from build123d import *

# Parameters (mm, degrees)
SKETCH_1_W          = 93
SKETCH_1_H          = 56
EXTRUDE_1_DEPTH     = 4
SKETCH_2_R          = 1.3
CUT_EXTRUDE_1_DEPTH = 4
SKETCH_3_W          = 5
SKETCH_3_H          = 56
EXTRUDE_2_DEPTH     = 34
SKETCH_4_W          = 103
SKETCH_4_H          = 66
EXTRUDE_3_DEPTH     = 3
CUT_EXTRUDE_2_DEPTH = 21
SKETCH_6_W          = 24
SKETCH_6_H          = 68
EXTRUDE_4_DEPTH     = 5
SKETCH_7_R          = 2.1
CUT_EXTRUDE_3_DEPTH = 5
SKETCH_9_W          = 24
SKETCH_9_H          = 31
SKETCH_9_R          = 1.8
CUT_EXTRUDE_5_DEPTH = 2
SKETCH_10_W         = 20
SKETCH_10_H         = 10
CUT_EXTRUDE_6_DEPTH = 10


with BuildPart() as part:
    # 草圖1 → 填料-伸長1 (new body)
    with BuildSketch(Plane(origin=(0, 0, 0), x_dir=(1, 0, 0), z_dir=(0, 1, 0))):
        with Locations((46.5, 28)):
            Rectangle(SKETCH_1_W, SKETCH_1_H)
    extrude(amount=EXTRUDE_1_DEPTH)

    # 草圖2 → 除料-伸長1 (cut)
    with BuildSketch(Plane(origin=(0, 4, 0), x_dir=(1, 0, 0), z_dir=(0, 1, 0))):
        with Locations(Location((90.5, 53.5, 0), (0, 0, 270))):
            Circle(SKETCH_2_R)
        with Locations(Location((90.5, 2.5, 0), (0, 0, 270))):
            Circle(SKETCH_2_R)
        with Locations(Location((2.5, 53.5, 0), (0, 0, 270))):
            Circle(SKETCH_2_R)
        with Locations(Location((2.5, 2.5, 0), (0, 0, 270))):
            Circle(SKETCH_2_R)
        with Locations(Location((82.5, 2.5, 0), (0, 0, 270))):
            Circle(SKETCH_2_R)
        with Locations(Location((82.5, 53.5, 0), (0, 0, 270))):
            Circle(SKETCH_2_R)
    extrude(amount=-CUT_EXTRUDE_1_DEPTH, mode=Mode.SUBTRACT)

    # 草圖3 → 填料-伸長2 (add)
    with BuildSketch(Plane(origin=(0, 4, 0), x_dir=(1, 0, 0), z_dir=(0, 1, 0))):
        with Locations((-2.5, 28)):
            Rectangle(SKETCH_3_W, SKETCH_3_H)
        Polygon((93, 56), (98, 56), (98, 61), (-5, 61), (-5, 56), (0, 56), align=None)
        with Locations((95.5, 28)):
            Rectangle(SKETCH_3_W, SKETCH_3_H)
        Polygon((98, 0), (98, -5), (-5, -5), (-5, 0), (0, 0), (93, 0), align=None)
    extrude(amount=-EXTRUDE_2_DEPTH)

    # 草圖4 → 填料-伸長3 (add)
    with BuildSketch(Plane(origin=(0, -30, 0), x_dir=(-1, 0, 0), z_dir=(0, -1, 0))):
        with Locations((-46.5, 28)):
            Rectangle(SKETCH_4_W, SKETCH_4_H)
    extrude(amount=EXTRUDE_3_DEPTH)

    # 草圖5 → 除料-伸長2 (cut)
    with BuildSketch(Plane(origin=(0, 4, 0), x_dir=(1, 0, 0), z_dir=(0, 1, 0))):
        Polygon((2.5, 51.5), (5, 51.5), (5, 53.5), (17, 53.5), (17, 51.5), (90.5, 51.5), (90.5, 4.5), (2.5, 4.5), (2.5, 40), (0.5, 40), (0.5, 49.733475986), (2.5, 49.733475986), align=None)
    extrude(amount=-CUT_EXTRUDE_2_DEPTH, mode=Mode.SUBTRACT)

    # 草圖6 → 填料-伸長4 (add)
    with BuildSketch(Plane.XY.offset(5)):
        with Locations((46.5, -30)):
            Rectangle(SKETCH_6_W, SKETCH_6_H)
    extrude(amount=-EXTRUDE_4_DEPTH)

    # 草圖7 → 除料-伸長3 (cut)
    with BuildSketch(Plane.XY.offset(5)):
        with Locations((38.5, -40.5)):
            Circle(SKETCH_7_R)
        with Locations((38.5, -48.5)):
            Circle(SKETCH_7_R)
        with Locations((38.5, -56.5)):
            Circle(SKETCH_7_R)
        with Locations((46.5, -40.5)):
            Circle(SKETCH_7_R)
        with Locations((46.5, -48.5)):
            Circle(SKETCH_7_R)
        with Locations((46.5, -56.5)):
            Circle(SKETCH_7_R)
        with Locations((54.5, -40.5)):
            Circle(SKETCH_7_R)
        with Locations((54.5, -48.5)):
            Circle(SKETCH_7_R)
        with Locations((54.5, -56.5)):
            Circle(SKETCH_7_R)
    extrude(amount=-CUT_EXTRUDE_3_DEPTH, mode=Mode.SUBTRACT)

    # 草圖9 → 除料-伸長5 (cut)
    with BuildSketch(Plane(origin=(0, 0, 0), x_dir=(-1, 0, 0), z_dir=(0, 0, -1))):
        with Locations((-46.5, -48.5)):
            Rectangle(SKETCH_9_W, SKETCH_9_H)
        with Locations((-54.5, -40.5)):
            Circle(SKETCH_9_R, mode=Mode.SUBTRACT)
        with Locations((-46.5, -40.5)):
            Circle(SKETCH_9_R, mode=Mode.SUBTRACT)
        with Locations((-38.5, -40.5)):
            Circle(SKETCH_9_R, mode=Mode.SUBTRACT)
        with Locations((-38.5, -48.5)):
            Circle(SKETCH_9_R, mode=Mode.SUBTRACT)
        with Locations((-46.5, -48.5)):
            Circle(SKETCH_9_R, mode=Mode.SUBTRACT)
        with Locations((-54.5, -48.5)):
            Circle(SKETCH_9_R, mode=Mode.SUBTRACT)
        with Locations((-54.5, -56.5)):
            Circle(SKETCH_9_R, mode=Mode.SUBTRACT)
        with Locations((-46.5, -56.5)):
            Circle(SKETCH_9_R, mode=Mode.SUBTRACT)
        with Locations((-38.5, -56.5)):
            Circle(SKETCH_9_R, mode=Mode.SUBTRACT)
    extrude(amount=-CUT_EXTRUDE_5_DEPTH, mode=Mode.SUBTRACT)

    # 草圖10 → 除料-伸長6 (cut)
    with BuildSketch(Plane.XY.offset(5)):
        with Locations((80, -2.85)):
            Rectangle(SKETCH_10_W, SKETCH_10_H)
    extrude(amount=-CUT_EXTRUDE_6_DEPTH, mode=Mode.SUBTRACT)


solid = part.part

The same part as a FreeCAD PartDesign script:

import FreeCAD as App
import Part
import Sketcher
from FreeCAD import Vector


def add_polygon(sketch, points):
    """Adds a closed chain of lines whose ends are joined by coincident constraints."""
    first, n = sketch.GeometryCount, len(points)
    for a, b in zip(points, points[1:] + points[:1]):
        sketch.addGeometry(Part.LineSegment(App.Vector(*a, 0), App.Vector(*b, 0)), False)
    for i in range(n):
        sketch.addConstraint(Sketcher.Constraint("Coincident", first + i, 2, first + (i + 1) % n, 1))

doc = App.newDocument("Part")
body = doc.addObject("PartDesign::Body", "Body")

# Sketch on XZ plane
sketch1 = body.newObject("Sketcher::SketchObject", "Sketch")
sketch1.AttachmentSupport = (doc.getObject("XZ_Plane"), [""])
sketch1.MapMode = "FlatFace"
add_polygon(sketch1, [(0, -56), (0, 0), (93, 0), (93, -56)])  # lines 0-3
sketch1.addConstraint([
    Sketcher.Constraint("Vertical", 0),
    Sketcher.Constraint("Horizontal", 1),
    Sketcher.Constraint("Vertical", 2),
    Sketcher.Constraint("Horizontal", 3),
    Sketcher.Constraint("Coincident", 0, 2, -1, 1),
    Sketcher.Constraint("DistanceX", 1, 1, 1, 2, 93.0),
    Sketcher.Constraint("DistanceY", 0, 1, 0, 2, 56.0),
])
pad1 = body.newObject("PartDesign::Pad", "Pad")
pad1.Profile = sketch1
pad1.Length = 4
pad1.Reversed = True

# Sketch on XZ plane
sketch2 = body.newObject("Sketcher::SketchObject", "Sketch001")
sketch2.AttachmentSupport = (doc.getObject("XZ_Plane"), [""])
sketch2.MapMode = "FlatFace"
sketch2.AttachmentOffset = App.Placement(Vector(0, 0, -4), App.Rotation())
sketch2.addGeometry([
    Part.Circle(Vector(90.5, -53.5, 0), Vector(0, 0, 1), 1.3),  # 0
    Part.Circle(Vector(90.5, -2.5, 0), Vector(0, 0, 1), 1.3),  # 1
    Part.Circle(Vector(2.5, -53.5, 0), Vector(0, 0, 1), 1.3),  # 2
    Part.Circle(Vector(2.5, -2.5, 0), Vector(0, 0, 1), 1.3),  # 3
    Part.Circle(Vector(82.5, -2.5, 0), Vector(0, 0, 1), 1.3),  # 4
    Part.Circle(Vector(82.5, -53.5, 0), Vector(0, 0, 1), 1.3),  # 5
], False)
sketch2.addConstraint([
    Sketcher.Constraint("Equal", 0, 1),
    Sketcher.Constraint("Equal", 1, 2),
    Sketcher.Constraint("Equal", 2, 3),
    Sketcher.Constraint("Equal", 3, 4),
    Sketcher.Constraint("Equal", 4, 5),
    Sketcher.Constraint("Horizontal", 0, 3, 2, 3),
    Sketcher.Constraint("Horizontal", 1, 3, 3, 3),
    Sketcher.Constraint("Horizontal", 3, 3, 4, 3),
    Sketcher.Constraint("Horizontal", 2, 3, 5, 3),
    Sketcher.Constraint("Vertical", 0, 3, 1, 3),
    Sketcher.Constraint("Vertical", 2, 3, 3, 3),
    Sketcher.Constraint("Vertical", 4, 3, 5, 3),
    Sketcher.Constraint("Diameter", 0, 2.6),
    Sketcher.Constraint("DistanceY", 0, 3, 1, 3, 51.0),
    Sketcher.Constraint("DistanceX", 2, 3, 0, 3, 88.0),
    Sketcher.Constraint("DistanceX", 4, 3, 1, 3, 8.0),
    Sketcher.Constraint("DistanceX", -1, 1, 0, 3, 90.5),
    Sketcher.Constraint("DistanceY", 0, 3, -1, 1, 53.5),
])
pocket1 = body.newObject("PartDesign::Pocket", "Pocket")
pocket1.Profile = sketch2
pocket1.Length = 4
pocket1.Reversed = True

# Sketch on XZ plane
sketch3 = body.newObject("Sketcher::SketchObject", "Sketch002")
sketch3.AttachmentSupport = (doc.getObject("XZ_Plane"), [""])
sketch3.MapMode = "FlatFace"
sketch3.AttachmentOffset = App.Placement(Vector(0, 0, -4), App.Rotation())
add_polygon(sketch3, [(98, -61), (-5, -61), (-5, 5), (98, 5)])  # lines 0-3
add_polygon(sketch3, [(0, 0), (0, -56), (93, -56), (93, 0)])  # lines 4-7
sketch3.addConstraint([
    Sketcher.Constraint("Horizontal", 0),
    Sketcher.Constraint("Vertical", 1),
    Sketcher.Constraint("Horizontal", 2),
    Sketcher.Constraint("Vertical", 3),
    Sketcher.Constraint("Vertical", 4),
    Sketcher.Constraint("Horizontal", 5),
    Sketcher.Constraint("Vertical", 6),
    Sketcher.Constraint("Horizontal", 7),
    Sketcher.Constraint("Coincident", 7, 2, -1, 1),
    Sketcher.Constraint("DistanceX", 0, 2, 0, 1, 103.0),
    Sketcher.Constraint("DistanceX", 5, 1, 5, 2, 93.0),
    Sketcher.Constraint("DistanceY", 1, 1, 1, 2, 66.0),
    Sketcher.Constraint("DistanceY", 4, 2, 4, 1, 56.0),
    Sketcher.Constraint("DistanceX", 0, 2, -1, 1, 5.0),
    Sketcher.Constraint("DistanceY", 0, 2, -1, 1, 61.0),
])
pad2 = body.newObject("PartDesign::Pad", "Pad001")
pad2.Profile = sketch3
pad2.Length = 34

# Sketch on XZ plane
sketch4 = body.newObject("Sketcher::SketchObject", "Sketch003")
sketch4.AttachmentSupport = (doc.getObject("XZ_Plane"), [""])
sketch4.MapMode = "FlatFace"
sketch4.AttachmentOffset = App.Placement(Vector(0, 0, 30), App.Rotation())
add_polygon(sketch4, [(98, -61), (98, 5), (-5, 5), (-5, -61)])  # lines 0-3
sketch4.addConstraint([
    Sketcher.Constraint("Vertical", 0),
    Sketcher.Constraint("Horizontal", 1),
    Sketcher.Constraint("Vertical", 2),
    Sketcher.Constraint("Horizontal", 3),
    Sketcher.Constraint("DistanceX", 1, 2, 1, 1, 103.0),
    Sketcher.Constraint("DistanceY", 0, 1, 0, 2, 66.0),
    Sketcher.Constraint("DistanceX", -1, 1, 0, 2, 98.0),
    Sketcher.Constraint("DistanceY", -1, 1, 0, 2, 5.0),
])
pad3 = body.newObject("PartDesign::Pad", "Pad002")
pad3.Profile = sketch4
pad3.Length = 3

# Sketch on XZ plane
sketch5 = body.newObject("Sketcher::SketchObject", "Sketch004")
sketch5.AttachmentSupport = (doc.getObject("XZ_Plane"), [""])
sketch5.MapMode = "FlatFace"
sketch5.AttachmentOffset = App.Placement(Vector(0, 0, -4), App.Rotation())
add_polygon(sketch5, [(5, -51.5), (2.5, -51.5), (2.5, -49.7), (0.5, -49.7), (0.5, -40), (2.5, -40), (2.5, -4.5), (90.5, -4.5), (90.5, -51.5), (17, -51.5), (17, -53.5), (5, -53.5)])  # lines 0-11
sketch5.addConstraint([
    Sketcher.Constraint("Horizontal", 0),
    Sketcher.Constraint("Vertical", 1),
    Sketcher.Constraint("Horizontal", 2),
    Sketcher.Constraint("Vertical", 3),
    Sketcher.Constraint("Horizontal", 4),
    Sketcher.Constraint("Vertical", 5),
    Sketcher.Constraint("Horizontal", 6),
    Sketcher.Constraint("Vertical", 7),
    Sketcher.Constraint("Horizontal", 8),
    Sketcher.Constraint("Vertical", 9),
    Sketcher.Constraint("Horizontal", 10),
    Sketcher.Constraint("Vertical", 11),
    Sketcher.Constraint("Horizontal", 0, 2, 7, 2),
    Sketcher.Constraint("Vertical", 1, 2, 4, 2),
    Sketcher.Constraint("Equal", 4, 9),
    Sketcher.Constraint("DistanceX", 2, 2, 2, 1, 2.0),
    Sketcher.Constraint("DistanceX", 6, 1, 6, 2, 88.0),
    Sketcher.Constraint("DistanceX", 10, 2, 10, 1, 12.0),
    Sketcher.Constraint("DistanceY", 7, 2, 7, 1, 47.0),
    Sketcher.Constraint("DistanceX", 0, 2, 0, 1, 2.5),
    Sketcher.Constraint("DistanceY", 5, 1, 5, 2, 35.5),
    Sketcher.Constraint("DistanceY", 3, 2, -1, 1, 40.0),
    Sketcher.Constraint("DistanceX", -1, 1, 8, 2, 17.0),
    Sketcher.Constraint("DistanceY", 1, 1, 1, 2, 1.766524),
])
pocket2 = body.newObject("PartDesign::Pocket", "Pocket001")
pocket2.Profile = sketch5
pocket2.Length = 21
pocket2.Reversed = True

# Sketch on XY plane
sketch6 = body.newObject("Sketcher::SketchObject", "Sketch005")
sketch6.AttachmentSupport = (doc.getObject("XY_Plane"), [""])
sketch6.MapMode = "FlatFace"
sketch6.AttachmentOffset = App.Placement(Vector(0, 0, 5), App.Rotation())
add_polygon(sketch6, [(34, 4), (34, -64), (58, -64), (58, 4)])  # lines 0-3
sketch6.addConstraint([
    Sketcher.Constraint("Vertical", 0),
    Sketcher.Constraint("Horizontal", 1),
    Sketcher.Constraint("Vertical", 2),
    Sketcher.Constraint("Horizontal", 3),
    Sketcher.Constraint("DistanceX", 1, 1, 1, 2, 24.0),
    Sketcher.Constraint("DistanceY", 0, 2, 0, 1, 68.0),
    Sketcher.Constraint("DistanceY", 0, 2, -1, 1, 64.0),
    Sketcher.Constraint("DistanceX", -1, 1, 0, 2, 34.5),
])
pad4 = body.newObject("PartDesign::Pad", "Pad003")
pad4.Profile = sketch6
pad4.Length = 5
pad4.Reversed = True

# Sketch on XY plane
sketch7 = body.newObject("Sketcher::SketchObject", "Sketch006")
sketch7.AttachmentSupport = (doc.getObject("XY_Plane"), [""])
sketch7.MapMode = "FlatFace"
sketch7.AttachmentOffset = App.Placement(Vector(0, 0, 5), App.Rotation())
sketch7.addGeometry([
    Part.Circle(Vector(38.5, -40.5, 0), Vector(0, 0, 1), 2.1),  # 0
    Part.Circle(Vector(38.5, -48.5, 0), Vector(0, 0, 1), 2.1),  # 1
    Part.Circle(Vector(38.5, -56.5, 0), Vector(0, 0, 1), 2.1),  # 2
    Part.Circle(Vector(46.5, -40.5, 0), Vector(0, 0, 1), 2.1),  # 3
    Part.Circle(Vector(46.5, -48.5, 0), Vector(0, 0, 1), 2.1),  # 4
    Part.Circle(Vector(46.5, -56.5, 0), Vector(0, 0, 1), 2.1),  # 5
    Part.Circle(Vector(54.5, -40.5, 0), Vector(0, 0, 1), 2.1),  # 6
    Part.Circle(Vector(54.5, -48.5, 0), Vector(0, 0, 1), 2.1),  # 7
    Part.Circle(Vector(54.5, -56.5, 0), Vector(0, 0, 1), 2.1),  # 8
], False)
sketch7.addConstraint([
    Sketcher.Constraint("Equal", 0, 1),
    Sketcher.Constraint("Equal", 1, 2),
    Sketcher.Constraint("Equal", 2, 3),
    Sketcher.Constraint("Equal", 3, 4),
    Sketcher.Constraint("Equal", 4, 5),
    Sketcher.Constraint("Equal", 5, 6),
    Sketcher.Constraint("Equal", 6, 7),
    Sketcher.Constraint("Equal", 7, 8),
    Sketcher.Constraint("Horizontal", 0, 3, 3, 3),
    Sketcher.Constraint("Horizontal", 1, 3, 4, 3),
    Sketcher.Constraint("Horizontal", 2, 3, 5, 3),
    Sketcher.Constraint("Horizontal", 3, 3, 6, 3),
    Sketcher.Constraint("Horizontal", 4, 3, 7, 3),
    Sketcher.Constraint("Horizontal", 5, 3, 8, 3),
    Sketcher.Constraint("Vertical", 0, 3, 1, 3),
    Sketcher.Constraint("Vertical", 1, 3, 2, 3),
    Sketcher.Constraint("Vertical", 3, 3, 4, 3),
    Sketcher.Constraint("Vertical", 4, 3, 5, 3),
    Sketcher.Constraint("Vertical", 6, 3, 7, 3),
    Sketcher.Constraint("Vertical", 7, 3, 8, 3),
    Sketcher.Constraint("Diameter", 0, 4.2),
    Sketcher.Constraint("DistanceY", 1, 3, 0, 3, 8.0),
    Sketcher.Constraint("DistanceY", 2, 3, 1, 3, 8.0),
    Sketcher.Constraint("DistanceX", 0, 3, 3, 3, 8.0),
    Sketcher.Constraint("DistanceX", 3, 3, 6, 3, 8.0),
    Sketcher.Constraint("DistanceX", -1, 1, 0, 3, 38.5),
    Sketcher.Constraint("DistanceY", 0, 3, -1, 1, 40.5),
])
pocket3 = body.newObject("PartDesign::Pocket", "Pocket002")
pocket3.Profile = sketch7
pocket3.Length = 5

# Sketch on XY plane
sketch8 = body.newObject("Sketcher::SketchObject", "Sketch007")
sketch8.AttachmentSupport = (doc.getObject("XY_Plane"), [""])
sketch8.MapMode = "FlatFace"
add_polygon(sketch8, [(58.5, -33), (58.5, -64), (34.5, -64), (34.5, -33)])  # lines 0-3
sketch8.addGeometry(Part.Circle(Vector(54.5, -56.5, 0), Vector(0, 0, 1), 1.8), False)  # 4
sketch8.addGeometry(Part.Circle(Vector(46.5, -56.5, 0), Vector(0, 0, 1), 1.8), False)  # 5
sketch8.addGeometry(Part.Circle(Vector(38.5, -56.5, 0), Vector(0, 0, 1), 1.8), False)  # 6
sketch8.addGeometry(Part.Circle(Vector(54.5, -48.5, 0), Vector(0, 0, 1), 1.8), False)  # 7
sketch8.addGeometry(Part.Circle(Vector(54.5, -40.5, 0), Vector(0, 0, 1), 1.8), False)  # 8
sketch8.addGeometry(Part.Circle(Vector(46.5, -48.5, 0), Vector(0, 0, 1), 1.8), False)  # 9
sketch8.addGeometry(Part.Circle(Vector(38.5, -48.5, 0), Vector(0, 0, 1), 1.8), False)  # 10
sketch8.addGeometry(Part.Circle(Vector(46.5, -40.5, 0), Vector(0, 0, 1), 1.8), False)  # 11
sketch8.addGeometry(Part.Circle(Vector(38.5, -40.5, 0), Vector(0, 0, 1), 1.8), False)  # 12
sketch8.addConstraint([
    Sketcher.Constraint("Vertical", 0),
    Sketcher.Constraint("Horizontal", 1),
    Sketcher.Constraint("Vertical", 2),
    Sketcher.Constraint("Horizontal", 3),
    Sketcher.Constraint("Equal", 4, 5),
    Sketcher.Constraint("Equal", 5, 6),
    Sketcher.Constraint("Equal", 6, 7),
    Sketcher.Constraint("Equal", 7, 8),
    Sketcher.Constraint("Equal", 8, 9),
    Sketcher.Constraint("Equal", 9, 10),
    Sketcher.Constraint("Equal", 10, 11),
    Sketcher.Constraint("Equal", 11, 12),
    Sketcher.Constraint("Horizontal", 4, 3, 5, 3),
    Sketcher.Constraint("Horizontal", 5, 3, 6, 3),
    Sketcher.Constraint("Horizontal", 7, 3, 9, 3),
    Sketcher.Constraint("Horizontal", 9, 3, 10, 3),
    Sketcher.Constraint("Horizontal", 8, 3, 11, 3),
    Sketcher.Constraint("Horizontal", 11, 3, 12, 3),
    Sketcher.Constraint("Vertical", 4, 3, 7, 3),
    Sketcher.Constraint("Vertical", 7, 3, 8, 3),
    Sketcher.Constraint("Vertical", 5, 3, 9, 3),
    Sketcher.Constraint("Vertical", 6, 3, 10, 3),
    Sketcher.Constraint("Vertical", 9, 3, 11, 3),
    Sketcher.Constraint("Vertical", 10, 3, 12, 3),
    Sketcher.Constraint("Diameter", 4, 3.6),
    Sketcher.Constraint("DistanceX", 1, 2, 1, 1, 24.0),
    Sketcher.Constraint("DistanceY", 0, 2, 0, 1, 31.0),
    Sketcher.Constraint("DistanceY", 0, 2, -1, 1, 64.0),
    Sketcher.Constraint("DistanceX", 5, 3, 4, 3, 8.0),
    Sketcher.Constraint("DistanceX", 6, 3, 5, 3, 8.0),
    Sketcher.Constraint("DistanceY", 4, 3, 7, 3, 8.0),
    Sketcher.Constraint("DistanceY", 7, 3, 8, 3, 8.0),
    Sketcher.Constraint("DistanceX", 4, 3, 0, 2, 4.0),
    Sketcher.Constraint("DistanceX", -1, 1, 4, 3, 54.5),
    Sketcher.Constraint("DistanceY", 4, 3, -1, 1, 56.5),
])
pocket4 = body.newObject("PartDesign::Pocket", "Pocket003")
pocket4.Profile = sketch8
pocket4.Length = 2
pocket4.Reversed = True

# Sketch on XY plane
sketch9 = body.newObject("Sketcher::SketchObject", "Sketch008")
sketch9.AttachmentSupport = (doc.getObject("XY_Plane"), [""])
sketch9.MapMode = "FlatFace"
sketch9.AttachmentOffset = App.Placement(Vector(0, 0, 5), App.Rotation())
add_polygon(sketch9, [(70, 2), (70, -8), (90, -8), (90, 2)])  # lines 0-3
sketch9.addConstraint([
    Sketcher.Constraint("Vertical", 0),
    Sketcher.Constraint("Horizontal", 1),
    Sketcher.Constraint("Vertical", 2),
    Sketcher.Constraint("Horizontal", 3),
    Sketcher.Constraint("DistanceX", 1, 1, 1, 2, 20.0),
    Sketcher.Constraint("DistanceY", 0, 2, 0, 1, 10.0),
    Sketcher.Constraint("DistanceX", -1, 1, 0, 2, 70.0),
    Sketcher.Constraint("DistanceY", 0, 2, -1, 1, 7.85),
])
pocket5 = body.newObject("PartDesign::Pocket", "Pocket004")
pocket5.Profile = sketch9
pocket5.Length = 10

doc.recompute()
